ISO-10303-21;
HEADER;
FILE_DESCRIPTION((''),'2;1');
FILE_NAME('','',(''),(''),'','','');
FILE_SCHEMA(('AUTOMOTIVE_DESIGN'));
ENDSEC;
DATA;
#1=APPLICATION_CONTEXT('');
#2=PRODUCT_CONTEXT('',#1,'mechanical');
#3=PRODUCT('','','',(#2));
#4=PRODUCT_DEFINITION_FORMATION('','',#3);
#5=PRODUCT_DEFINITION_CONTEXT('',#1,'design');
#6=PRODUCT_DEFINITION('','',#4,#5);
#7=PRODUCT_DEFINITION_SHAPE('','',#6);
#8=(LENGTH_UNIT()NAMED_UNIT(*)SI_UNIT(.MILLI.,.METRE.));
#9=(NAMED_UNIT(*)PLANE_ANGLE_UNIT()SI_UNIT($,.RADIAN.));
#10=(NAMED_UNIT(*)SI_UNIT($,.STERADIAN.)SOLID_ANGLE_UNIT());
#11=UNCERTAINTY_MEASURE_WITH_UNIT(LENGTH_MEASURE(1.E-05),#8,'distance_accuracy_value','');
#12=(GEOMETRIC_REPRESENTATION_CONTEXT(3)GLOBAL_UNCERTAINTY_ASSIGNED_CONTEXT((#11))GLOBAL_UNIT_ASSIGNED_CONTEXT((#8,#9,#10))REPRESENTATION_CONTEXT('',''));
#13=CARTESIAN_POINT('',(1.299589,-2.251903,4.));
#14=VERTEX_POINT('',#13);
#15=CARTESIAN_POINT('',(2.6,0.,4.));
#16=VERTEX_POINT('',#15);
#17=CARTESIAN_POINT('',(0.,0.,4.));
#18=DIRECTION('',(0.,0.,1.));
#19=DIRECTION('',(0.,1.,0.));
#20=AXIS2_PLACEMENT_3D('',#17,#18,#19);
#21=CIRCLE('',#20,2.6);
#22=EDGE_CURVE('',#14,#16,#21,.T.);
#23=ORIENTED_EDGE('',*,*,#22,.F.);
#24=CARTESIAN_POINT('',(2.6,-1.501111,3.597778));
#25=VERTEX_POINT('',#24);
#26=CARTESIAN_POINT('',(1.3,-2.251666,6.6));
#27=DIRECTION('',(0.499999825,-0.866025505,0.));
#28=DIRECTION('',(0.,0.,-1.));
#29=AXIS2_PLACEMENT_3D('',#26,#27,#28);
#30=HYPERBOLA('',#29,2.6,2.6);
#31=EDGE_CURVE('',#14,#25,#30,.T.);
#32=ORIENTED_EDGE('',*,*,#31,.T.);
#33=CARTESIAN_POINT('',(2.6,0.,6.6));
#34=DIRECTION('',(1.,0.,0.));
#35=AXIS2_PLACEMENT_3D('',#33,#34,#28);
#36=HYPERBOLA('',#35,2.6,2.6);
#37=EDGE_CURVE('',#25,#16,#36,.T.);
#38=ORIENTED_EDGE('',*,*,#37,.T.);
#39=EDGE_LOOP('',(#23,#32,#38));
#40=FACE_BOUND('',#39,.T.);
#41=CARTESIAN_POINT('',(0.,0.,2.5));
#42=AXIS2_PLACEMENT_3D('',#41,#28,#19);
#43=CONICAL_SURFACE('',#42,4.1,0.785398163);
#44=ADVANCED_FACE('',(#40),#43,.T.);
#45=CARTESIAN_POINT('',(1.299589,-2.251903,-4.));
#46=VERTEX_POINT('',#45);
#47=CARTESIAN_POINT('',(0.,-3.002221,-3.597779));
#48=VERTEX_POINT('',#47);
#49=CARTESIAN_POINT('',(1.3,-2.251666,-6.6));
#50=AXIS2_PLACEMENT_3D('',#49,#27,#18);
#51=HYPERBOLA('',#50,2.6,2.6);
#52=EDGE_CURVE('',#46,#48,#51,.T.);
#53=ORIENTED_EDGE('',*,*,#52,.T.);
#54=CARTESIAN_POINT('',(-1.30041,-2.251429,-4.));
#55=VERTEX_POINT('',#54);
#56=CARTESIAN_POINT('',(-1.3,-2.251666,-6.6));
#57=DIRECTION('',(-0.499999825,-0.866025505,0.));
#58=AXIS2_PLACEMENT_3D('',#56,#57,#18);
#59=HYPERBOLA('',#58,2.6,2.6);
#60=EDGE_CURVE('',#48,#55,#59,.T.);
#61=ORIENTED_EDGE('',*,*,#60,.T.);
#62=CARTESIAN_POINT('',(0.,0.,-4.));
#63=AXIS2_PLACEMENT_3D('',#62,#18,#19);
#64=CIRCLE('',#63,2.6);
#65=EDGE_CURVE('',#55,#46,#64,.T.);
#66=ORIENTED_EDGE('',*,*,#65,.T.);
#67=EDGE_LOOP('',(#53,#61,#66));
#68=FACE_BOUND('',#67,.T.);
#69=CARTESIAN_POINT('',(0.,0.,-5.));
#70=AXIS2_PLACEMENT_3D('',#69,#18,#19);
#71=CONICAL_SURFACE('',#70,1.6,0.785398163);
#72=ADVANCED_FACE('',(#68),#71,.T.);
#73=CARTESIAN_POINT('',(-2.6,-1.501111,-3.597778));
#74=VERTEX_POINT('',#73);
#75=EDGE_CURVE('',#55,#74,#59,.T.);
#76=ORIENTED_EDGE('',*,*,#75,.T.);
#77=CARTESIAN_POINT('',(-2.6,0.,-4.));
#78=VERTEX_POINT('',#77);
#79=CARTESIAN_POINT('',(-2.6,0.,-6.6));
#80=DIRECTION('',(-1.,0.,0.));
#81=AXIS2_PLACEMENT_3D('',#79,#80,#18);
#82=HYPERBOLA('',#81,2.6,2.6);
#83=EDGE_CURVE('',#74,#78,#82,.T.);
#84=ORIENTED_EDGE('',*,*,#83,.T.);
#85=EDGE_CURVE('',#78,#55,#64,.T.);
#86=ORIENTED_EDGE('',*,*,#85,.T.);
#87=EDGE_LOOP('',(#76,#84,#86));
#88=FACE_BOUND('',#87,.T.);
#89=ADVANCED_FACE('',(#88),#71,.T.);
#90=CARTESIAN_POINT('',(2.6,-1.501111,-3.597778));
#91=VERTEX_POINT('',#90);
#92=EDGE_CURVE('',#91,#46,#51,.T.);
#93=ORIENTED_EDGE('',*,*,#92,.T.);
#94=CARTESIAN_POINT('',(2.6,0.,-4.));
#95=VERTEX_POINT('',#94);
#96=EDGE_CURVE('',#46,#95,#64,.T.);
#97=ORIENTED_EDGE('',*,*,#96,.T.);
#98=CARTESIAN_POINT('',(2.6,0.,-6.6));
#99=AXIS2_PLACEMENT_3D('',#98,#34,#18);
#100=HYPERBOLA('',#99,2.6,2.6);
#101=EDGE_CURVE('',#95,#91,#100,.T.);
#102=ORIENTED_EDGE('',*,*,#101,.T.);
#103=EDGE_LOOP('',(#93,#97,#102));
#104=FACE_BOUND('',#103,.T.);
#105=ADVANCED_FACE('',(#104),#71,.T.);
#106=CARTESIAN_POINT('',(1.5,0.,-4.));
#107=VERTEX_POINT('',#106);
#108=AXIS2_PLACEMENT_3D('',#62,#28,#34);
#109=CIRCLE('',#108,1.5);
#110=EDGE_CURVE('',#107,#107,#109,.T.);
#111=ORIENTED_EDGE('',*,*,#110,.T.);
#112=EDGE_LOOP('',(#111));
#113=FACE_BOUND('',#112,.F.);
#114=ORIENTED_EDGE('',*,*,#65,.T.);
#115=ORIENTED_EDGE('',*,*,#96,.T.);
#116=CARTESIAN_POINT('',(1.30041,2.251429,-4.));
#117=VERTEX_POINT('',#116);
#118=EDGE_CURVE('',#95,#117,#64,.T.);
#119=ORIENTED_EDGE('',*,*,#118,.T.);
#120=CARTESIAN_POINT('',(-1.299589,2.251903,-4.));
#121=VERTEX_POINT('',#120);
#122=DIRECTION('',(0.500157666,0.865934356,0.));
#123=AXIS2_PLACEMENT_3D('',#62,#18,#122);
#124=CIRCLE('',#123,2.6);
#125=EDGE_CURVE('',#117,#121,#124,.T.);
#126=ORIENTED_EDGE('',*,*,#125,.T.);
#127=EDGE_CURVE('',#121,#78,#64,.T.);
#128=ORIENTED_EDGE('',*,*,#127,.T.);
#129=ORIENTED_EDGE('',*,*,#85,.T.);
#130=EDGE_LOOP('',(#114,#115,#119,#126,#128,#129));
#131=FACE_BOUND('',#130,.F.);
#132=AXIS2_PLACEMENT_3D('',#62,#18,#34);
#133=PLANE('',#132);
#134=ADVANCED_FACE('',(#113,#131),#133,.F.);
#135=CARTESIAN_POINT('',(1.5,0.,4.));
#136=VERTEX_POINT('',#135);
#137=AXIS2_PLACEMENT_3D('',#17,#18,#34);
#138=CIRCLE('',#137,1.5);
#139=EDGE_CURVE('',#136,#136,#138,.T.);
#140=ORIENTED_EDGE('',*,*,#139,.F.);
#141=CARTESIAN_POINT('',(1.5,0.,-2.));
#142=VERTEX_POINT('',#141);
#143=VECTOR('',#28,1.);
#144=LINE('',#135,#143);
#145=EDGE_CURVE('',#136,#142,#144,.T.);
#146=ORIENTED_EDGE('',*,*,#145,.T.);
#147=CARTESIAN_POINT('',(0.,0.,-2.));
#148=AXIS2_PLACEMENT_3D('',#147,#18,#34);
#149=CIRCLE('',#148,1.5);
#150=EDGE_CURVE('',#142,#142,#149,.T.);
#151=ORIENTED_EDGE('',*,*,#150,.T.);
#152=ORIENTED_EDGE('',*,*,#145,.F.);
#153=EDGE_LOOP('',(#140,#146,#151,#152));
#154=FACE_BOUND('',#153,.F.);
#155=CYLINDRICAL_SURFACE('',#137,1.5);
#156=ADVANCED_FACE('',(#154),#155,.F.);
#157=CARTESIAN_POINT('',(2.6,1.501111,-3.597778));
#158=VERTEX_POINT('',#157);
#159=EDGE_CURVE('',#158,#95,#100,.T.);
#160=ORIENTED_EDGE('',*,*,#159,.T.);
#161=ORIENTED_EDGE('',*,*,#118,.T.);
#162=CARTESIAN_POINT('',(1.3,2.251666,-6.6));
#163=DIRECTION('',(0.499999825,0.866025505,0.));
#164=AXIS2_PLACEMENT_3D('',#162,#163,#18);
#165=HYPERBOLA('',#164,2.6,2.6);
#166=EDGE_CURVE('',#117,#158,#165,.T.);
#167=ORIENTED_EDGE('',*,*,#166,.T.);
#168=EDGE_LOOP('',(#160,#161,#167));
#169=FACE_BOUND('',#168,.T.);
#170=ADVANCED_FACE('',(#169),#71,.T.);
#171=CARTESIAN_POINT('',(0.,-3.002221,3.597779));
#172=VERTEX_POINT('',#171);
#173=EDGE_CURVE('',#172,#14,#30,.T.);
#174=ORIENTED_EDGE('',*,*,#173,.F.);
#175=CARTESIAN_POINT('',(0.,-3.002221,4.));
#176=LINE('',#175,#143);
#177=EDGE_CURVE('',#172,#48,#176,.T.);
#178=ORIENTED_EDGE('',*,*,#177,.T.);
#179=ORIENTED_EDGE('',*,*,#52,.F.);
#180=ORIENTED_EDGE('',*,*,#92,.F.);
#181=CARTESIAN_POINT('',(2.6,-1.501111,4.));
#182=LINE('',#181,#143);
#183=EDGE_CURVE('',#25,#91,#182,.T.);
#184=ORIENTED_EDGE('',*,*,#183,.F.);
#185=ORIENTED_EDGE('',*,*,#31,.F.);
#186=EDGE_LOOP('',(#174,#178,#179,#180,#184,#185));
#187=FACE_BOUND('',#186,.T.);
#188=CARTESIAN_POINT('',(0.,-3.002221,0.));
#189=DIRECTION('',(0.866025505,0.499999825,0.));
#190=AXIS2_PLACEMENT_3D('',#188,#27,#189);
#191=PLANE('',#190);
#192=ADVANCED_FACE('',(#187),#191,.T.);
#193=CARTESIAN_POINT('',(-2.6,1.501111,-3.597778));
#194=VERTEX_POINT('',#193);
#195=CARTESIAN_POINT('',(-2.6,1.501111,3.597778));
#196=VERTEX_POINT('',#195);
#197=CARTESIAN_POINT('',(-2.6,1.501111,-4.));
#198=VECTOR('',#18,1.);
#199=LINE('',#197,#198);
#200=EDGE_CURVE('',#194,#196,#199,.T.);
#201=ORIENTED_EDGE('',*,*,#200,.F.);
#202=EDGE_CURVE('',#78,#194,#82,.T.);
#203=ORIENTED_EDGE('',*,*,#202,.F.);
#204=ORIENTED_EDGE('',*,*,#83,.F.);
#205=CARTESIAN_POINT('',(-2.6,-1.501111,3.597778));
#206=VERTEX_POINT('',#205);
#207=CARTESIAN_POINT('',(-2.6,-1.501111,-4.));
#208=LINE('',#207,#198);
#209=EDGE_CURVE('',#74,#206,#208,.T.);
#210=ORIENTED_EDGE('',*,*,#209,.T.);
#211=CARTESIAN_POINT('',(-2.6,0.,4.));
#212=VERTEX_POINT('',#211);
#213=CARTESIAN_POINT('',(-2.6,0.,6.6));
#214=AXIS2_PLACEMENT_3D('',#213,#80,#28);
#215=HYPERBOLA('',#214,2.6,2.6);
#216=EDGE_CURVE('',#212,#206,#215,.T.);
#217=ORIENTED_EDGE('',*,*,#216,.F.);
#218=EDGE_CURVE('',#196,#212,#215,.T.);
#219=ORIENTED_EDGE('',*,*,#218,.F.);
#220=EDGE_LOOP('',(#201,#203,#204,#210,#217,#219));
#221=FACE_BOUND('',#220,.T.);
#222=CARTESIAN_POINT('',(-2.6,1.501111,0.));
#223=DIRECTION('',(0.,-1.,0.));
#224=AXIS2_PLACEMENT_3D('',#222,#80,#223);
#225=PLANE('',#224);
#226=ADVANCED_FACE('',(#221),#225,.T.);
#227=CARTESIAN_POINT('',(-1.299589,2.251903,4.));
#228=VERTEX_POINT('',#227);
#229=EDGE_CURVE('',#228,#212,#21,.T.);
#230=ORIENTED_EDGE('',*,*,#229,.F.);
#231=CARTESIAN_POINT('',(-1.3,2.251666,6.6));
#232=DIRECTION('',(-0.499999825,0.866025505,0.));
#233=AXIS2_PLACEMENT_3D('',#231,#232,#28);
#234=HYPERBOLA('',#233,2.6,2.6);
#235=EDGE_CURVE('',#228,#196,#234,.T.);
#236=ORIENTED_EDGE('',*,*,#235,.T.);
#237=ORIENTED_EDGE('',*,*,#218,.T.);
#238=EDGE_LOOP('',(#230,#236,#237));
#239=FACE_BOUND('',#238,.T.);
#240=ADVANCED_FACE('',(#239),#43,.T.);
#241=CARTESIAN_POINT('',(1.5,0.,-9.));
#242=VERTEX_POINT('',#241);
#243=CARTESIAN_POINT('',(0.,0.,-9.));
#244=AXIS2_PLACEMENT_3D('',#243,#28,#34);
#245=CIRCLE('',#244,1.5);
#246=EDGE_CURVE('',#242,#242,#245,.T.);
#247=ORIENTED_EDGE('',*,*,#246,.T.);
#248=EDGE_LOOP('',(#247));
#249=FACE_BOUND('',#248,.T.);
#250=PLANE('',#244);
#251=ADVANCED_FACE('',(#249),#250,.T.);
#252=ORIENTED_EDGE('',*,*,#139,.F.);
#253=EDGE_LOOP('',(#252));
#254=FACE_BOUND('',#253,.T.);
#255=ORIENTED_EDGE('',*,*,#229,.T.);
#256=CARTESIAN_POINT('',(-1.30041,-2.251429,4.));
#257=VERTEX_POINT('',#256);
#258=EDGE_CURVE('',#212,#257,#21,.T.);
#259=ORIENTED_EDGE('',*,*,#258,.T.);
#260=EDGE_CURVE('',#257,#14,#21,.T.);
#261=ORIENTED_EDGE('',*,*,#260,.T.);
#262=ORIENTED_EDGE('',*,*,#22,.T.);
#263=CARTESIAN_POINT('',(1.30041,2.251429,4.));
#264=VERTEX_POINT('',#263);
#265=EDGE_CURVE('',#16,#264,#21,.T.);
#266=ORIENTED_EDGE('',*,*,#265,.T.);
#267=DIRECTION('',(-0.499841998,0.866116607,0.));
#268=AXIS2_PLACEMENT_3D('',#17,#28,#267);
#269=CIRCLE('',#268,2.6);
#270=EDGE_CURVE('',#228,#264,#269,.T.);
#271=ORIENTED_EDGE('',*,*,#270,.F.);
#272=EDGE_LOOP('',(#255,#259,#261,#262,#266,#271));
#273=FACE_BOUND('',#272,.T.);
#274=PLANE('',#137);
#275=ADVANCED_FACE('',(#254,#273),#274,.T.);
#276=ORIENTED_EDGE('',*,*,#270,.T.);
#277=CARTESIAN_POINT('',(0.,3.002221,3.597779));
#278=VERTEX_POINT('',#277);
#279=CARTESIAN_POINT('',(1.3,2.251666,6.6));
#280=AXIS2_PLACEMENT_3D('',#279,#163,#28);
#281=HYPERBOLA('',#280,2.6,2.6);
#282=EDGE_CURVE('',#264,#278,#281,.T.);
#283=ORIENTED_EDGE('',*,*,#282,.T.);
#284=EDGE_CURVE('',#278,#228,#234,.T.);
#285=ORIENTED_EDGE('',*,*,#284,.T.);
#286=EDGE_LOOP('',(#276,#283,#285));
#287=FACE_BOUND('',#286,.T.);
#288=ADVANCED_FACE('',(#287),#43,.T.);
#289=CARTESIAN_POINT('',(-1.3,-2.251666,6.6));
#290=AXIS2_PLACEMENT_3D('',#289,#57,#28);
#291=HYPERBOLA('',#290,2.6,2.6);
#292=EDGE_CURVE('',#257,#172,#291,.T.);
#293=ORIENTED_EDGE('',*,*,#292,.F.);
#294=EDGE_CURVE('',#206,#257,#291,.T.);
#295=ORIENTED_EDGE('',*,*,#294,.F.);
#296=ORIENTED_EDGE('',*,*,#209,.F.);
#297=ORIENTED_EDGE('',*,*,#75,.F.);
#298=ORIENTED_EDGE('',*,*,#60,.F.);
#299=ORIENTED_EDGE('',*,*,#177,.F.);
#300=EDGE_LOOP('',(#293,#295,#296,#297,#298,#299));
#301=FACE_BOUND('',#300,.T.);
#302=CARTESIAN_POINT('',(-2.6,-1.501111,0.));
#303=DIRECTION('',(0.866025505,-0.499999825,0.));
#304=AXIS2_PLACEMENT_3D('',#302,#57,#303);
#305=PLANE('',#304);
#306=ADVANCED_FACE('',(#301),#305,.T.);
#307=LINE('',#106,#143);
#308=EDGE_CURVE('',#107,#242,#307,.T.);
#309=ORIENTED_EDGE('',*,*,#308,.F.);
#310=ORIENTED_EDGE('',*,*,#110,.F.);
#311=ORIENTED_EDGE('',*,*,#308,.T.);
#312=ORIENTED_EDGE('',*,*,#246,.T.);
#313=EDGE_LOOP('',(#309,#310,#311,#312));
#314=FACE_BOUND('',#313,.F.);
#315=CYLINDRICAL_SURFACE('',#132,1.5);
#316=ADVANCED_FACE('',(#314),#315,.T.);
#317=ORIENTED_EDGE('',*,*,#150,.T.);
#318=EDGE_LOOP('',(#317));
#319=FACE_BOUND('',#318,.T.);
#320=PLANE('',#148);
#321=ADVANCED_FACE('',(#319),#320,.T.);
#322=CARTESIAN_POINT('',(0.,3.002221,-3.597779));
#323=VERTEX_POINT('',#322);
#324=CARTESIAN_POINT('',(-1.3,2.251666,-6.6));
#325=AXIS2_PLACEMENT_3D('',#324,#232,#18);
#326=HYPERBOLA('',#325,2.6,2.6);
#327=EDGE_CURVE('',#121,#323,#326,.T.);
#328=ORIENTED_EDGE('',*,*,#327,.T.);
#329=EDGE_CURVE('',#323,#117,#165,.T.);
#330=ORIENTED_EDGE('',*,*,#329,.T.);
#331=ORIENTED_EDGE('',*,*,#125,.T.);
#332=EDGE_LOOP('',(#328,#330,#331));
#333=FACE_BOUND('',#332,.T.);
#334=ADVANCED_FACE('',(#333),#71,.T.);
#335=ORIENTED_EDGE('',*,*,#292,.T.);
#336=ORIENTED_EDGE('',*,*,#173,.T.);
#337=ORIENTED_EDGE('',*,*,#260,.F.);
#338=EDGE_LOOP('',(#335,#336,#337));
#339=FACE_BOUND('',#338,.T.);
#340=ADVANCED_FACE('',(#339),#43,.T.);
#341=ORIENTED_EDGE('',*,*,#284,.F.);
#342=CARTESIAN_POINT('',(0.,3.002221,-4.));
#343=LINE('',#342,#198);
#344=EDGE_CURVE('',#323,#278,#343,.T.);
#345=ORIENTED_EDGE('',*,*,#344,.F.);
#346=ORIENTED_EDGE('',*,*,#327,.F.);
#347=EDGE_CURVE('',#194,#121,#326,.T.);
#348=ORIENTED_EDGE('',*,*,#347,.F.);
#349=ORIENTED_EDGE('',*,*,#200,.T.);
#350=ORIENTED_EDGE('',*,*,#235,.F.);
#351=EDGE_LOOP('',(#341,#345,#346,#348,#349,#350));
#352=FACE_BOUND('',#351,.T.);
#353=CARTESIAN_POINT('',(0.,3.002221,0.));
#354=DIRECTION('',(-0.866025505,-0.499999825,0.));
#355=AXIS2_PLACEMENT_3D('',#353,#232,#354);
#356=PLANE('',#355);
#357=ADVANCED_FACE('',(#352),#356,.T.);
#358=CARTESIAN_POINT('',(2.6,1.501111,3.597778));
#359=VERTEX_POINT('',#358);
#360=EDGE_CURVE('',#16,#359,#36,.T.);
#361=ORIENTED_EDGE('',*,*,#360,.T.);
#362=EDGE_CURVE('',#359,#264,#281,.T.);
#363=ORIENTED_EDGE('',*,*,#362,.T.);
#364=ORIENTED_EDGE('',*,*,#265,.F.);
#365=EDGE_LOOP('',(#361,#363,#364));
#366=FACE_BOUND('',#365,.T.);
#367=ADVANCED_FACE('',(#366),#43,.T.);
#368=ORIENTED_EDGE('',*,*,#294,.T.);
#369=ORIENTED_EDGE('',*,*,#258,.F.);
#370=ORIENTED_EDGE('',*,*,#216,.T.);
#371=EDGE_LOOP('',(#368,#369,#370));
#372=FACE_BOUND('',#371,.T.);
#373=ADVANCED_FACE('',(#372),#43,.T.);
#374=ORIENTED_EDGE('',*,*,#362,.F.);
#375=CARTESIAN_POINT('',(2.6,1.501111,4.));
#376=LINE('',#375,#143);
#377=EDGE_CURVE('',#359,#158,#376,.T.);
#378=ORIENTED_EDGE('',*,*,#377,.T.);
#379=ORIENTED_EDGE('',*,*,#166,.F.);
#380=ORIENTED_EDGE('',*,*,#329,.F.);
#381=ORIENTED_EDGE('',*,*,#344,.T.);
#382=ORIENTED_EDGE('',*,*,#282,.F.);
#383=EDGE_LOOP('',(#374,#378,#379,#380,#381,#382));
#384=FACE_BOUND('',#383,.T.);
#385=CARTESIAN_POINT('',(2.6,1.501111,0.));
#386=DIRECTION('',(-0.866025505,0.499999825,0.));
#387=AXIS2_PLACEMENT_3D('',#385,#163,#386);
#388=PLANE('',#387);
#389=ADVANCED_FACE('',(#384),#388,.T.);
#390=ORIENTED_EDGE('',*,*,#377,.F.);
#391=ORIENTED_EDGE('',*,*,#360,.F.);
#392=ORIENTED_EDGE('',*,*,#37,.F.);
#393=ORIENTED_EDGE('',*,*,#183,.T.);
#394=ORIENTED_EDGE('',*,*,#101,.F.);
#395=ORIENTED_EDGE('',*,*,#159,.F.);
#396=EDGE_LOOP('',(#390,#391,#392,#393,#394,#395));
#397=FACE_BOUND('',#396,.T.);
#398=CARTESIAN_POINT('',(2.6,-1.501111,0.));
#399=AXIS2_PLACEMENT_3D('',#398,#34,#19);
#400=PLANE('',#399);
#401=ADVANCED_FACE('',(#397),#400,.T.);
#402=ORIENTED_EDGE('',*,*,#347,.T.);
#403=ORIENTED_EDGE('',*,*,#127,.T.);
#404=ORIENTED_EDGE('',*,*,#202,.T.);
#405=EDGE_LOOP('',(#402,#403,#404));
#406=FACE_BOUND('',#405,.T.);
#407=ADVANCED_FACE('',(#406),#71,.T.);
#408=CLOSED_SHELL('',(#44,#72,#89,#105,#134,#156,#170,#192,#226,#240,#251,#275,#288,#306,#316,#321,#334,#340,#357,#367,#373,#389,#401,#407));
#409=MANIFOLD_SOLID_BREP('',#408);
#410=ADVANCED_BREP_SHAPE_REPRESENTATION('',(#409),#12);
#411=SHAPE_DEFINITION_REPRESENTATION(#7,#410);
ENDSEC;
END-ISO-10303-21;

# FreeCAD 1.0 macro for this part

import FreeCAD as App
import Part
import Sketcher
from FreeCAD import Vector
Q = App.Units.Quantity


def add_polygon(sketch, points):
    """Adds a closed chain of lines whose ends are joined by coincident constraints."""
    first, n = sketch.GeometryCount, len(points)
    for a, b in zip(points, points[1:] + points[:1]):
        sketch.addGeometry(Part.LineSegment(App.Vector(*a, 0), App.Vector(*b, 0)), False)
    for i in range(n):
        sketch.addConstraint(Sketcher.Constraint("Coincident", first + i, 2, first + (i + 1) % n, 1))

doc = App.newDocument("Part")
params = doc.addObject("Spreadsheet::Sheet", "Params")
for row, (alias, value) in enumerate([
    ("sketch1_width", "3 mm"),
    ("sketch1_height", "5 mm"),
    ("sketch1_height2", "10 mm"),
    ("revolution_angle", "360 deg"),
    ("pad1_length", "8 mm"),
    ("sketch3_diameter", "3 mm"),
    ("pocket1_length", "6 mm"),
    ("sketch4_diameter", "3 mm"),
    ("pad2_length", "5 mm"),
], start=1):
    params.set(f"A{row}", alias)
    params.set(f"B{row}", "=" + value)
    params.setAlias(f"B{row}", alias)

body = doc.addObject("PartDesign::Body", "Body")

sketch1 = body.newObject("Sketcher::SketchObject", "Sketch")
sketch1.AttachmentSupport = (doc.getObject("YZ_Plane"), [""])
sketch1.MapMode = "FlatFace"
add_polygon(sketch1, [(4.6, 5), (1.6, 5), (4.1, 2.5), (4.1, -2.5), (1.6, -5), (4.6, -5)])
sketch1.addConstraint([
    Sketcher.Constraint("Horizontal", 0),
    Sketcher.Constraint("Vertical", 2),
    Sketcher.Constraint("Horizontal", 4),
    Sketcher.Constraint("Vertical", 5),
    Sketcher.Constraint("Symmetric", 0, 2, 3, 2, -1),
    Sketcher.Constraint("Perpendicular", 1, 3),
    Sketcher.Constraint("Equal", 1, 3),
    Sketcher.Constraint("DistanceX", 0, 2, 0, 1, 3.0),
    Sketcher.Constraint("DistanceY", 2, 2, 2, 1, 5.0),
    Sketcher.Constraint("DistanceY", 5, 1, 5, 2, 10.0),
    Sketcher.Constraint("DistanceX", -1, 1, 0, 2, 1.6),
])
sketch1.setExpression("Constraints[13]", "Params.sketch1_width")
sketch1.setExpression("Constraints[14]", "Params.sketch1_height")
sketch1.setExpression("Constraints[15]", "Params.sketch1_height2")
revolution = body.newObject("PartDesign::Revolution", "Revolution")
revolution.Profile = sketch1
revolution.ReferenceAxis = (sketch1, ["V_Axis"])
revolution.setExpression("Angle", "Params.revolution_angle")
body2 = doc.addObject("PartDesign::Body", "Body001")

sketch2 = body2.newObject("Sketcher::SketchObject", "Sketch001")
sketch2.AttachmentSupport = (doc.getObject("XY_Plane001"), [""])
sketch2.MapMode = "FlatFace"
add_polygon(sketch2, [(2.6, 1.5), (0, 3), (-2.6, 1.5), (-2.6, -1.5), (0, -3), (2.6, -1.5)])
sketch2.addConstraint([
    Sketcher.Constraint("Vertical", 2),
    Sketcher.Constraint("Vertical", 5),
    Sketcher.Constraint("Symmetric", 0, 2, 3, 2, -1, 1),
    Sketcher.Constraint("Symmetric", 1, 2, 4, 2, -1, 1),
    Sketcher.Constraint("PointOnObject", 0, 2, -2),
    Sketcher.Constraint("Parallel", 0, 3),
    Sketcher.Constraint("Horizontal", 2, 2, 4, 2),
    Sketcher.Constraint("Angle", 0, Q("150.000012 deg")),
    Sketcher.Constraint("DistanceX", 1, 2, -1, 1, 2.6),
    Sketcher.Constraint("DistanceY", 2, 2, 2, 1, 3.002222),
])
pad1 = body2.newObject("PartDesign::Pad", "Pad")
pad1.Profile = sketch2
pad1.setExpression("Length", "Params.pad1_length")
pad1.Midplane = True

sketch3 = body2.newObject("Sketcher::SketchObject", "Sketch002")
sketch3.AttachmentSupport = (doc.getObject("XY_Plane001"), [""])
sketch3.MapMode = "FlatFace"
sketch3.AttachmentOffset = App.Placement(Vector(0, 0, 4), App.Rotation())
sketch3.addGeometry(Part.Circle(Vector(0, 0, 0), Vector(0, 0, 1), 1.5), False)
sketch3.addConstraint([
    Sketcher.Constraint("Coincident", 0, 3, -1, 1),
    Sketcher.Constraint("Diameter", 0, 3.0),
])
sketch3.setExpression("Constraints[1]", "Params.sketch3_diameter")
pocket1 = body2.newObject("PartDesign::Pocket", "Pocket")
pocket1.Profile = sketch3
pocket1.setExpression("Length", "Params.pocket1_length")

sketch4 = body2.newObject("Sketcher::SketchObject", "Sketch003")
sketch4.AttachmentSupport = (doc.getObject("XY_Plane001"), [""])
sketch4.MapMode = "FlatFace"
sketch4.AttachmentOffset = App.Placement(Vector(0, 0, -4), App.Rotation())
sketch4.addGeometry(Part.Circle(Vector(0, 0, 0), Vector(0, 0, 1), 1.5), False)
sketch4.addConstraint([
    Sketcher.Constraint("Coincident", 0, 3, -1, 1),
    Sketcher.Constraint("Diameter", 0, 3.0),
])
sketch4.setExpression("Constraints[1]", "Params.sketch4_diameter")
pad2 = body2.newObject("PartDesign::Pad", "Pad001")
pad2.Profile = sketch4
pad2.setExpression("Length", "Params.pad2_length")
pad2.Reversed = True
doc.recompute()

boolean = body2.newObject("PartDesign::Boolean", "Boolean")
boolean.Type = "Cut"
boolean.addObjects([body])

doc.recompute()
